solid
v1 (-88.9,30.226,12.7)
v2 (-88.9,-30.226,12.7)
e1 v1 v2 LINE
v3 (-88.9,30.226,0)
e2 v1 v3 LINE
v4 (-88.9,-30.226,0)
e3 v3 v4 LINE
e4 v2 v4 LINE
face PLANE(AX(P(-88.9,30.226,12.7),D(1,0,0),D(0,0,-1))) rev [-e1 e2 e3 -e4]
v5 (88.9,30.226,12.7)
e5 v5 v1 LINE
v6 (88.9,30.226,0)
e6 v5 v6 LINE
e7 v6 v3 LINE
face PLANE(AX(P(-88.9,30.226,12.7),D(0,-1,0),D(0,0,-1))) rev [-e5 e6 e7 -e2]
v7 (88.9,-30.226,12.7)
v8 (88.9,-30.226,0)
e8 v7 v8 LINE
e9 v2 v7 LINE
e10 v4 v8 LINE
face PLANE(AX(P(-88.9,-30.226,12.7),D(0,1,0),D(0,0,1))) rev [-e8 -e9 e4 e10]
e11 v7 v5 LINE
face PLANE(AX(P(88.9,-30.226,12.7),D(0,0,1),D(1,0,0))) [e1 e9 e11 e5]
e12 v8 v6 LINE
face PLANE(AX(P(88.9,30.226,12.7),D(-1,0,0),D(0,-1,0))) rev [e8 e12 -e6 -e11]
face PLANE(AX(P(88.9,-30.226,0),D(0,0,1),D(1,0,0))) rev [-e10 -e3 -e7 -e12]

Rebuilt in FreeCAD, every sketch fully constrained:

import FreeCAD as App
import Part
import Sketcher
Q = App.Units.Quantity


def add_polygon(sketch, points):
    """Adds a closed chain of lines whose ends are joined by coincident constraints."""
    first, n = sketch.GeometryCount, len(points)
    for a, b in zip(points, points[1:] + points[:1]):
        sketch.addGeometry(Part.LineSegment(App.Vector(*a, 0), App.Vector(*b, 0)), False)
    for i in range(n):
        sketch.addConstraint(Sketcher.Constraint("Coincident", first + i, 2, first + (i + 1) % n, 1))

doc = App.newDocument("Part")
body = doc.addObject("PartDesign::Body", "Body")

# Sketch on XY plane
sketch1 = body.newObject("Sketcher::SketchObject", "Sketch")
sketch1.AttachmentSupport = (doc.getObject("XY_Plane"), [""])
sketch1.MapMode = "FlatFace"
add_polygon(sketch1, [(-89, 30), (-89, -30), (89, -30), (89, 30)])  # lines 0-3
sketch1.addConstraint(Sketcher.Constraint("Vertical", 0))
sketch1.addConstraint(Sketcher.Constraint("Horizontal", 1))
sketch1.addConstraint(Sketcher.Constraint("Vertical", 2))
sketch1.addConstraint(Sketcher.Constraint("Horizontal", 3))
sketch1.addConstraint(Sketcher.Constraint("Symmetric", 0, 2, 2, 2, -1, 1))
sketch1.addConstraint(Sketcher.Constraint("DistanceX", 1, 1, 1, 2, Q("7 in")))
sketch1.addConstraint(Sketcher.Constraint("DistanceY", 0, 2, 0, 1, Q("2.38 in")))
pad1 = body.newObject("PartDesign::Pad", "Pad")
pad1.Profile = sketch1
pad1.Length = Q("0.5 in")

doc.recompute()
